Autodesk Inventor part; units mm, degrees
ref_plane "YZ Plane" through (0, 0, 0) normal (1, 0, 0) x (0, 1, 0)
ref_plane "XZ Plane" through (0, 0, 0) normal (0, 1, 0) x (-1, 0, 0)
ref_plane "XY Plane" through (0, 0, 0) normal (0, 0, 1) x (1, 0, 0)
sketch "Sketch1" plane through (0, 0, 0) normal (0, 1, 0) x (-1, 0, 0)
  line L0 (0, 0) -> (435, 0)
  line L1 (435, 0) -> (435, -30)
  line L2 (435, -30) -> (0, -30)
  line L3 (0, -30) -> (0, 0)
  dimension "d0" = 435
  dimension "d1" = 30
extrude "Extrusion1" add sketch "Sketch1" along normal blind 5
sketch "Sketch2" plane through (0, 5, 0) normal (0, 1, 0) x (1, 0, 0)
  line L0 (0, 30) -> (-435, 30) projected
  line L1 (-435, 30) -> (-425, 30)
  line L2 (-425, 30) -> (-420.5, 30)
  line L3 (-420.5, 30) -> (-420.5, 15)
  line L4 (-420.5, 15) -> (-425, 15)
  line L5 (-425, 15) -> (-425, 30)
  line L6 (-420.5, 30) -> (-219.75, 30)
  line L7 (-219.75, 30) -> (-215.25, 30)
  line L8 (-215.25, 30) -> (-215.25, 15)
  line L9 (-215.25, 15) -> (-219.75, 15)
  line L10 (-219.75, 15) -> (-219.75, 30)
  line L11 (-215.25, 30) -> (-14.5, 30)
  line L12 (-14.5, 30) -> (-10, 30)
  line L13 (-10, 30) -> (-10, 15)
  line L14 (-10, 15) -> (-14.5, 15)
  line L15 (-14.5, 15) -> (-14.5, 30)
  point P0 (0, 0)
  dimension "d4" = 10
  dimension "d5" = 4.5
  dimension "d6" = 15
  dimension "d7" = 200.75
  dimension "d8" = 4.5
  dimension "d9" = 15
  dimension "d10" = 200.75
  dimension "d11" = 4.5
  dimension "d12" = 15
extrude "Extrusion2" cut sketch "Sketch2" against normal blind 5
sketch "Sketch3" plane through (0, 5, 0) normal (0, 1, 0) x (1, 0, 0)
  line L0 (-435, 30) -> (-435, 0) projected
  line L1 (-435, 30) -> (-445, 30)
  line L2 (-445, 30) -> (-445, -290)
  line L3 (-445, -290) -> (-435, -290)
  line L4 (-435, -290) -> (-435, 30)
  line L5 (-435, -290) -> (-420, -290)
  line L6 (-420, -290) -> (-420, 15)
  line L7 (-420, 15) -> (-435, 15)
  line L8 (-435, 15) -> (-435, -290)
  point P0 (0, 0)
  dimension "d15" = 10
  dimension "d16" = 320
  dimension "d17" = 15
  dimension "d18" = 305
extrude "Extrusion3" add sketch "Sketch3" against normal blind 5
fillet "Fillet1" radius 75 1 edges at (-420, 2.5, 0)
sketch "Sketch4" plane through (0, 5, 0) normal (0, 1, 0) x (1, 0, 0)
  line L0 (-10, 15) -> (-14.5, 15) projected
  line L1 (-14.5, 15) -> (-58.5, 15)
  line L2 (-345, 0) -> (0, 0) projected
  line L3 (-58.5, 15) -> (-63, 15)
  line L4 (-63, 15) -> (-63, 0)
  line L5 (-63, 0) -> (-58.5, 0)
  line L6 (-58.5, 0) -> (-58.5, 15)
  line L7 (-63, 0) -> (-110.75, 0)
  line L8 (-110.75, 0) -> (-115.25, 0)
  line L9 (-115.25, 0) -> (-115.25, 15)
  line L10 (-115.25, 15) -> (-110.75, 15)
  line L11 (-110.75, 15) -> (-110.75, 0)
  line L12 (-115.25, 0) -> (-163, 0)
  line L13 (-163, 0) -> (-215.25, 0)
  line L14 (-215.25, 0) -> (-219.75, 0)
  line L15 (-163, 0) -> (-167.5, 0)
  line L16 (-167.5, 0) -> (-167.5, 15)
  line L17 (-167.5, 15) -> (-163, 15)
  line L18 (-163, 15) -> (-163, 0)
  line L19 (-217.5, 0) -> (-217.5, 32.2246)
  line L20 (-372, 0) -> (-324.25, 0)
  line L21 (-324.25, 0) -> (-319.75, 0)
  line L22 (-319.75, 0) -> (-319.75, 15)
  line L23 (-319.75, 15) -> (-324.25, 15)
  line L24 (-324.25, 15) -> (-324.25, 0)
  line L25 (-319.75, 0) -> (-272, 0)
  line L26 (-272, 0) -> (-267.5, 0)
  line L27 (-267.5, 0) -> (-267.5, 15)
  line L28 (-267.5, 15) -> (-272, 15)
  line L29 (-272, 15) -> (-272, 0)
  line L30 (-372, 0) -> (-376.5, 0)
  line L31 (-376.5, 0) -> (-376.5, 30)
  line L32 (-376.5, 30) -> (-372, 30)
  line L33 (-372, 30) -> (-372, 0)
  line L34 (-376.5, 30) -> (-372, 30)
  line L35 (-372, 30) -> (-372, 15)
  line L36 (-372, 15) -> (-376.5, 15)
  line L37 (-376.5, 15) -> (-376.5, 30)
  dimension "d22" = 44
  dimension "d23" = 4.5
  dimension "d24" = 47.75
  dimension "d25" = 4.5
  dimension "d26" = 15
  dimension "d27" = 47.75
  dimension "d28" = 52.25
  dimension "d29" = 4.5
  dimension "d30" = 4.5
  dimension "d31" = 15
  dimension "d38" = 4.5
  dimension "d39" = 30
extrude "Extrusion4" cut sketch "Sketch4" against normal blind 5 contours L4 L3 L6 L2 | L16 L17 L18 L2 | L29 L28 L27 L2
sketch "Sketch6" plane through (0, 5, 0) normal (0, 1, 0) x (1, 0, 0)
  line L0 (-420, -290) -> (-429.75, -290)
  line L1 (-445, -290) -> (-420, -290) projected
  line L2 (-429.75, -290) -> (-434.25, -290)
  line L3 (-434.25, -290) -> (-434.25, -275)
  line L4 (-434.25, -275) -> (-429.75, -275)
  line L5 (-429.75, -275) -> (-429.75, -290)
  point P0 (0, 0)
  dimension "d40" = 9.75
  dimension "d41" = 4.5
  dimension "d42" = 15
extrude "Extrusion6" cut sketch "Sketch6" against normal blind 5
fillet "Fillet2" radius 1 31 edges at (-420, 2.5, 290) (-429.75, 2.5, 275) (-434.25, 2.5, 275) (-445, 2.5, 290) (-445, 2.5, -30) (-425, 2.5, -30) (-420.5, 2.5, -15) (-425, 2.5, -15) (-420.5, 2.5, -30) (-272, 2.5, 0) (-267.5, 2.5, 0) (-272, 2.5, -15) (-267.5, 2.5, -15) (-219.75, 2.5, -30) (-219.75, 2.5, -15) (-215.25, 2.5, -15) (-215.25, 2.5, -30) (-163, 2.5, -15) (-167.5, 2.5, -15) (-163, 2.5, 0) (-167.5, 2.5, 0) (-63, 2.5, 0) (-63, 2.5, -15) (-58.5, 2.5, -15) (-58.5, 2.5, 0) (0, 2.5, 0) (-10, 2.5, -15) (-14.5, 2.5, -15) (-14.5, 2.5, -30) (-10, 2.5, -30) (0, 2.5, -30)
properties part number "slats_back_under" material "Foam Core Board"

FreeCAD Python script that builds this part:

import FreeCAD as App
import Part
import Sketcher


def edges_at(feature, points):
    """Names of the edges that pass closest to the given points."""
    edges = feature.Shape.Edges
    near = lambda p: min(range(len(edges)), key=lambda i: edges[i].distToShape(Part.Vertex(*p))[0])
    return sorted({f"Edge{near(p) + 1}" for p in points})

doc = App.newDocument("Part")
body = doc.addObject("PartDesign::Body", "Body")

sketch1 = body.newObject("Sketcher::SketchObject", "Sketch")
sketch1.AttachmentSupport = (doc.getObject("XZ_Plane"), [""])
sketch1.MapMode = "FlatFace"
sketch1.addGeometry(Part.LineSegment(App.Vector(-435, 0, 0), App.Vector(0, 0, 0)), False)
sketch1.addGeometry(Part.LineSegment(App.Vector(0, 0, 0), App.Vector(0, -30, 0)), False)
sketch1.addGeometry(Part.LineSegment(App.Vector(0, -30, 0), App.Vector(-435, -30, 0)), False)
sketch1.addGeometry(Part.LineSegment(App.Vector(-435, -30, 0), App.Vector(-435, 0, 0)), False)
sketch1.addConstraint(Sketcher.Constraint("Coincident", 0, 2, 1, 1))
sketch1.addConstraint(Sketcher.Constraint("Coincident", 1, 2, 2, 1))
sketch1.addConstraint(Sketcher.Constraint("Coincident", 2, 2, 3, 1))
sketch1.addConstraint(Sketcher.Constraint("Coincident", 3, 2, 0, 1))
sketch1.addConstraint(Sketcher.Constraint("Horizontal", 0))
sketch1.addConstraint(Sketcher.Constraint("Vertical", 1))
sketch1.addConstraint(Sketcher.Constraint("Horizontal", 2))
sketch1.addConstraint(Sketcher.Constraint("Vertical", 3))
sketch1.addConstraint(Sketcher.Constraint("Coincident", 0, 2, -1, 1))
sketch1.addConstraint(Sketcher.Constraint("DistanceX", 0, 1, 0, 2, 435.0))
sketch1.addConstraint(Sketcher.Constraint("DistanceY", 1, 2, 1, 1, 30.0))
pad1 = body.newObject("PartDesign::Pad", "Pad")
pad1.Profile = sketch1
pad1.Length = 5
pad1.Reversed = True

sketch2 = body.newObject("Sketcher::SketchObject", "Sketch001")
sketch2.AttachmentSupport = (doc.getObject("XZ_Plane"), [""])
sketch2.MapMode = "FlatFace"
sketch2.AttachmentOffset = App.Placement(App.Vector(0, 0, -5), App.Rotation())
sketch2.addGeometry(Part.LineSegment(App.Vector(-10, -15, 0), App.Vector(-10, -30, 0)), False)
sketch2.addGeometry(Part.LineSegment(App.Vector(-10, -30, 0), App.Vector(-14.5, -30, 0)), False)
sketch2.addGeometry(Part.LineSegment(App.Vector(-14.5, -30, 0), App.Vector(-14.5, -15, 0)), False)
sketch2.addGeometry(Part.LineSegment(App.Vector(-14.5, -15, 0), App.Vector(-10, -15, 0)), False)
sketch2.addGeometry(Part.LineSegment(App.Vector(-420.5, -15, 0), App.Vector(-420.5, -30, 0)), False)
sketch2.addGeometry(Part.LineSegment(App.Vector(-420.5, -30, 0), App.Vector(-425, -30, 0)), False)
sketch2.addGeometry(Part.LineSegment(App.Vector(-425, -30, 0), App.Vector(-425, -15, 0)), False)
sketch2.addGeometry(Part.LineSegment(App.Vector(-425, -15, 0), App.Vector(-420.5, -15, 0)), False)
sketch2.addGeometry(Part.LineSegment(App.Vector(-215.2, -15, 0), App.Vector(-215.2, -30, 0)), False)
sketch2.addGeometry(Part.LineSegment(App.Vector(-215.2, -30, 0), App.Vector(-219.8, -30, 0)), False)
sketch2.addGeometry(Part.LineSegment(App.Vector(-219.8, -30, 0), App.Vector(-219.8, -15, 0)), False)
sketch2.addGeometry(Part.LineSegment(App.Vector(-219.8, -15, 0), App.Vector(-215.2, -15, 0)), False)
sketch2.addConstraint(Sketcher.Constraint("Coincident", 0, 2, 1, 1))
sketch2.addConstraint(Sketcher.Constraint("Coincident", 1, 2, 2, 1))
sketch2.addConstraint(Sketcher.Constraint("Coincident", 2, 2, 3, 1))
sketch2.addConstraint(Sketcher.Constraint("Coincident", 3, 2, 0, 1))
sketch2.addConstraint(Sketcher.Constraint("Coincident", 4, 2, 5, 1))
sketch2.addConstraint(Sketcher.Constraint("Coincident", 5, 2, 6, 1))
sketch2.addConstraint(Sketcher.Constraint("Coincident", 6, 2, 7, 1))
sketch2.addConstraint(Sketcher.Constraint("Coincident", 7, 2, 4, 1))
sketch2.addConstraint(Sketcher.Constraint("Coincident", 8, 2, 9, 1))
sketch2.addConstraint(Sketcher.Constraint("Coincident", 9, 2, 10, 1))
sketch2.addConstraint(Sketcher.Constraint("Coincident", 10, 2, 11, 1))
sketch2.addConstraint(Sketcher.Constraint("Coincident", 11, 2, 8, 1))
sketch2.addConstraint(Sketcher.Constraint("Vertical", 0))
sketch2.addConstraint(Sketcher.Constraint("Horizontal", 1))
sketch2.addConstraint(Sketcher.Constraint("Vertical", 2))
sketch2.addConstraint(Sketcher.Constraint("Horizontal", 3))
sketch2.addConstraint(Sketcher.Constraint("Vertical", 4))
sketch2.addConstraint(Sketcher.Constraint("Horizontal", 5))
sketch2.addConstraint(Sketcher.Constraint("Vertical", 6))
sketch2.addConstraint(Sketcher.Constraint("Horizontal", 7))
sketch2.addConstraint(Sketcher.Constraint("Vertical", 8))
sketch2.addConstraint(Sketcher.Constraint("Horizontal", 9))
sketch2.addConstraint(Sketcher.Constraint("Vertical", 10))
sketch2.addConstraint(Sketcher.Constraint("Horizontal", 11))
sketch2.addConstraint(Sketcher.Constraint("Horizontal", 1, 2, 4, 2))
sketch2.addConstraint(Sketcher.Constraint("Horizontal", 3, 2, 6, 2))
sketch2.addConstraint(Sketcher.Constraint("Horizontal", 5, 2, 8, 2))
sketch2.addConstraint(Sketcher.Constraint("Horizontal", 7, 2, 10, 2))
sketch2.addConstraint(Sketcher.Constraint("Equal", 3, 5))
sketch2.addConstraint(Sketcher.Constraint("Equal", 7, 9))
sketch2.addConstraint(Sketcher.Constraint("DistanceY", 0, 2, 0, 1, 15.0))
sketch2.addConstraint(Sketcher.Constraint("DistanceX", 1, 2, 1, 1, 4.5))
sketch2.addConstraint(Sketcher.Constraint("DistanceX", 0, 2, -1, 1, 10.0))
sketch2.addConstraint(Sketcher.Constraint("DistanceY", 2, 2, -1, 1, 15.0))
sketch2.addConstraint(Sketcher.Constraint("DistanceX", 8, 2, 1, 2, 200.75))
sketch2.addConstraint(Sketcher.Constraint("DistanceX", 4, 2, 9, 2, 200.75))
pocket1 = body.newObject("PartDesign::Pocket", "Pocket")
pocket1.Profile = sketch2
pocket1.Length = 5
pocket1.Reversed = True

sketch3 = body.newObject("Sketcher::SketchObject", "Sketch002")
sketch3.AttachmentSupport = (doc.getObject("XZ_Plane"), [""])
sketch3.MapMode = "FlatFace"
sketch3.AttachmentOffset = App.Placement(App.Vector(0, 0, -5), App.Rotation())
sketch3.addGeometry(Part.LineSegment(App.Vector(-435, -15, 0), App.Vector(-435, -30, 0)), False)
sketch3.addGeometry(Part.LineSegment(App.Vector(-435, -30, 0), App.Vector(-445, -30, 0)), False)
sketch3.addGeometry(Part.LineSegment(App.Vector(-445, -30, 0), App.Vector(-445, 290, 0)), False)
sketch3.addGeometry(Part.LineSegment(App.Vector(-445, 290, 0), App.Vector(-420, 290, 0)), False)
sketch3.addGeometry(Part.LineSegment(App.Vector(-420, 290, 0), App.Vector(-420, -15, 0)), False)
sketch3.addGeometry(Part.LineSegment(App.Vector(-420, -15, 0), App.Vector(-435, -15, 0)), False)
sketch3.addConstraint(Sketcher.Constraint("Coincident", 0, 2, 1, 1))
sketch3.addConstraint(Sketcher.Constraint("Coincident", 1, 2, 2, 1))
sketch3.addConstraint(Sketcher.Constraint("Coincident", 2, 2, 3, 1))
sketch3.addConstraint(Sketcher.Constraint("Coincident", 3, 2, 4, 1))
sketch3.addConstraint(Sketcher.Constraint("Coincident", 4, 2, 5, 1))
sketch3.addConstraint(Sketcher.Constraint("Coincident", 5, 2, 0, 1))
sketch3.addConstraint(Sketcher.Constraint("Vertical", 0))
sketch3.addConstraint(Sketcher.Constraint("Horizontal", 1))
sketch3.addConstraint(Sketcher.Constraint("Vertical", 2))
sketch3.addConstraint(Sketcher.Constraint("Horizontal", 3))
sketch3.addConstraint(Sketcher.Constraint("Vertical", 4))
sketch3.addConstraint(Sketcher.Constraint("Horizontal", 5))
sketch3.addConstraint(Sketcher.Constraint("Equal", 5, 0))
sketch3.addConstraint(Sketcher.Constraint("DistanceX", 1, 2, 1, 1, 10.0))
sketch3.addConstraint(Sketcher.Constraint("DistanceX", 5, 2, 5, 1, 15.0))
sketch3.addConstraint(Sketcher.Constraint("DistanceY", 2, 1, 2, 2, 320.0))
sketch3.addConstraint(Sketcher.Constraint("DistanceY", 4, 2, -1, 1, 15.0))
sketch3.addConstraint(Sketcher.Constraint("DistanceX", 0, 2, -1, 1, 435.0))
pad2 = body.newObject("PartDesign::Pad", "Pad001")
pad2.Profile = sketch3
pad2.Length = 5
doc.recompute()

fillet = body.newObject("PartDesign::Fillet", "Fillet")
fillet.Base = (pad2, edges_at(pad2, [(-420, 2.5, 0)]))
fillet.Radius = 75

sketch4 = body.newObject("Sketcher::SketchObject", "Sketch003")
sketch4.AttachmentSupport = (doc.getObject("XZ_Plane"), [""])
sketch4.MapMode = "FlatFace"
sketch4.AttachmentOffset = App.Placement(App.Vector(0, 0, -5), App.Rotation())
sketch4.addGeometry(Part.LineSegment(App.Vector(-63, -15, 0), App.Vector(-63, 0, 0)), False)
sketch4.addGeometry(Part.LineSegment(App.Vector(-63, 0, 0), App.Vector(-58.5, 0, 0)), False)
sketch4.addGeometry(Part.LineSegment(App.Vector(-58.5, 0, 0), App.Vector(-58.5, -15, 0)), False)
sketch4.addGeometry(Part.LineSegment(App.Vector(-58.5, -15, 0), App.Vector(-63, -15, 0)), False)
sketch4.addGeometry(Part.LineSegment(App.Vector(-167.5, -15, 0), App.Vector(-167.5, 0, 0)), False)
sketch4.addGeometry(Part.LineSegment(App.Vector(-167.5, 0, 0), App.Vector(-163, 0, 0)), False)
sketch4.addGeometry(Part.LineSegment(App.Vector(-163, 0, 0), App.Vector(-163, -15, 0)), False)
sketch4.addGeometry(Part.LineSegment(App.Vector(-163, -15, 0), App.Vector(-167.5, -15, 0)), False)
sketch4.addGeometry(Part.LineSegment(App.Vector(-272, -15, 0), App.Vector(-272, 0, 0)), False)
sketch4.addGeometry(Part.LineSegment(App.Vector(-272, 0, 0), App.Vector(-267.5, 0, 0)), False)
sketch4.addGeometry(Part.LineSegment(App.Vector(-267.5, 0, 0), App.Vector(-267.5, -15, 0)), False)
sketch4.addGeometry(Part.LineSegment(App.Vector(-267.5, -15, 0), App.Vector(-272, -15, 0)), False)
sketch4.addConstraint(Sketcher.Constraint("Coincident", 0, 2, 1, 1))
sketch4.addConstraint(Sketcher.Constraint("Coincident", 1, 2, 2, 1))
sketch4.addConstraint(Sketcher.Constraint("Coincident", 2, 2, 3, 1))
sketch4.addConstraint(Sketcher.Constraint("Coincident", 3, 2, 0, 1))
sketch4.addConstraint(Sketcher.Constraint("Coincident", 4, 2, 5, 1))
sketch4.addConstraint(Sketcher.Constraint("Coincident", 5, 2, 6, 1))
sketch4.addConstraint(Sketcher.Constraint("Coincident", 6, 2, 7, 1))
sketch4.addConstraint(Sketcher.Constraint("Coincident", 7, 2, 4, 1))
sketch4.addConstraint(Sketcher.Constraint("Coincident", 8, 2, 9, 1))
sketch4.addConstraint(Sketcher.Constraint("Coincident", 9, 2, 10, 1))
sketch4.addConstraint(Sketcher.Constraint("Coincident", 10, 2, 11, 1))
sketch4.addConstraint(Sketcher.Constraint("Coincident", 11, 2, 8, 1))
sketch4.addConstraint(Sketcher.Constraint("Vertical", 0))
sketch4.addConstraint(Sketcher.Constraint("Horizontal", 1))
sketch4.addConstraint(Sketcher.Constraint("Vertical", 2))
sketch4.addConstraint(Sketcher.Constraint("Horizontal", 3))
sketch4.addConstraint(Sketcher.Constraint("Vertical", 4))
sketch4.addConstraint(Sketcher.Constraint("Horizontal", 5))
sketch4.addConstraint(Sketcher.Constraint("Vertical", 6))
sketch4.addConstraint(Sketcher.Constraint("Horizontal", 7))
sketch4.addConstraint(Sketcher.Constraint("Vertical", 8))
sketch4.addConstraint(Sketcher.Constraint("Horizontal", 9))
sketch4.addConstraint(Sketcher.Constraint("Vertical", 10))
sketch4.addConstraint(Sketcher.Constraint("Horizontal", 11))
sketch4.addConstraint(Sketcher.Constraint("PointOnObject", 0, 2, -1))
sketch4.addConstraint(Sketcher.Constraint("PointOnObject", 4, 2, -1))
sketch4.addConstraint(Sketcher.Constraint("PointOnObject", 8, 2, -1))
sketch4.addConstraint(Sketcher.Constraint("Horizontal", 3, 2, 6, 2))
sketch4.addConstraint(Sketcher.Constraint("Horizontal", 7, 2, 10, 2))
sketch4.addConstraint(Sketcher.Constraint("Equal", 3, 5))
sketch4.addConstraint(Sketcher.Constraint("Equal", 7, 9))
sketch4.addConstraint(Sketcher.Constraint("DistanceY", 0, 1, 0, 2, 15.0))
sketch4.addConstraint(Sketcher.Constraint("DistanceX", 1, 1, 1, 2, 4.5))
sketch4.addConstraint(Sketcher.Constraint("DistanceX", 0, 2, -1, 1, 63.0))
sketch4.addConstraint(Sketcher.Constraint("DistanceX", 5, 2, -1, 1, 163.0))
sketch4.addConstraint(Sketcher.Constraint("DistanceX", 8, 2, -1, 1, 272.0))
pocket2 = body.newObject("PartDesign::Pocket", "Pocket001")
pocket2.Profile = sketch4
pocket2.Length = 5
pocket2.Reversed = True

sketch5 = body.newObject("Sketcher::SketchObject", "Sketch004")
sketch5.AttachmentSupport = (doc.getObject("XZ_Plane"), [""])
sketch5.MapMode = "FlatFace"
sketch5.AttachmentOffset = App.Placement(App.Vector(0, 0, -5), App.Rotation())
sketch5.addGeometry(Part.LineSegment(App.Vector(-434.2, 275, 0), App.Vector(-434.2, 290, 0)), False)
sketch5.addGeometry(Part.LineSegment(App.Vector(-434.2, 290, 0), App.Vector(-429.8, 290, 0)), False)
sketch5.addGeometry(Part.LineSegment(App.Vector(-429.8, 290, 0), App.Vector(-429.8, 275, 0)), False)
sketch5.addGeometry(Part.LineSegment(App.Vector(-429.8, 275, 0), App.Vector(-434.2, 275, 0)), False)
sketch5.addConstraint(Sketcher.Constraint("Coincident", 0, 2, 1, 1))
sketch5.addConstraint(Sketcher.Constraint("Coincident", 1, 2, 2, 1))
sketch5.addConstraint(Sketcher.Constraint("Coincident", 2, 2, 3, 1))
sketch5.addConstraint(Sketcher.Constraint("Coincident", 3, 2, 0, 1))
sketch5.addConstraint(Sketcher.Constraint("Vertical", 0))
sketch5.addConstraint(Sketcher.Constraint("Horizontal", 1))
sketch5.addConstraint(Sketcher.Constraint("Vertical", 2))
sketch5.addConstraint(Sketcher.Constraint("Horizontal", 3))
sketch5.addConstraint(Sketcher.Constraint("DistanceY", 0, 1, 0, 2, 15.0))
sketch5.addConstraint(Sketcher.Constraint("DistanceX", 1, 1, 1, 2, 4.5))
sketch5.addConstraint(Sketcher.Constraint("DistanceY", -1, 1, 0, 2, 290.0))
sketch5.addConstraint(Sketcher.Constraint("DistanceX", 0, 2, -1, 1, 434.25))
pocket3 = body.newObject("PartDesign::Pocket", "Pocket002")
pocket3.Profile = sketch5
pocket3.Length = 5
pocket3.Reversed = True
doc.recompute()

fillet2 = body.newObject("PartDesign::Fillet", "Fillet001")
fillet2.Base = (pocket3, edges_at(pocket3, [
    (-420, 2.5, 290),
    (-429.75, 2.5, 275),
    (-434.25, 2.5, 275),
    (-445, 2.5, 290),
    (-445, 2.5, -30),
    (-425, 2.5, -30),
    (-420.5, 2.5, -15),
    (-425, 2.5, -15),
    (-420.5, 2.5, -30),
    (-272, 2.5, 0),
    (-267.5, 2.5, 0),
    (-272, 2.5, -15),
    (-267.5, 2.5, -15),
    (-219.75, 2.5, -30),
    (-219.75, 2.5, -15),
    (-215.25, 2.5, -15),
    (-215.25, 2.5, -30),
    (-163, 2.5, -15),
    (-167.5, 2.5, -15),
    (-163, 2.5, 0),
    (-167.5, 2.5, 0),
    (-63, 2.5, 0),
    (-63, 2.5, -15),
    (-58.5, 2.5, -15),
    (-58.5, 2.5, 0),
    (0, 2.5, 0),
    (-10, 2.5, -15),
    (-14.5, 2.5, -15),
    (-14.5, 2.5, -30),
    (-10, 2.5, -30),
    (0, 2.5, -30),
]))
fillet2.Radius = 1

doc.recompute()
